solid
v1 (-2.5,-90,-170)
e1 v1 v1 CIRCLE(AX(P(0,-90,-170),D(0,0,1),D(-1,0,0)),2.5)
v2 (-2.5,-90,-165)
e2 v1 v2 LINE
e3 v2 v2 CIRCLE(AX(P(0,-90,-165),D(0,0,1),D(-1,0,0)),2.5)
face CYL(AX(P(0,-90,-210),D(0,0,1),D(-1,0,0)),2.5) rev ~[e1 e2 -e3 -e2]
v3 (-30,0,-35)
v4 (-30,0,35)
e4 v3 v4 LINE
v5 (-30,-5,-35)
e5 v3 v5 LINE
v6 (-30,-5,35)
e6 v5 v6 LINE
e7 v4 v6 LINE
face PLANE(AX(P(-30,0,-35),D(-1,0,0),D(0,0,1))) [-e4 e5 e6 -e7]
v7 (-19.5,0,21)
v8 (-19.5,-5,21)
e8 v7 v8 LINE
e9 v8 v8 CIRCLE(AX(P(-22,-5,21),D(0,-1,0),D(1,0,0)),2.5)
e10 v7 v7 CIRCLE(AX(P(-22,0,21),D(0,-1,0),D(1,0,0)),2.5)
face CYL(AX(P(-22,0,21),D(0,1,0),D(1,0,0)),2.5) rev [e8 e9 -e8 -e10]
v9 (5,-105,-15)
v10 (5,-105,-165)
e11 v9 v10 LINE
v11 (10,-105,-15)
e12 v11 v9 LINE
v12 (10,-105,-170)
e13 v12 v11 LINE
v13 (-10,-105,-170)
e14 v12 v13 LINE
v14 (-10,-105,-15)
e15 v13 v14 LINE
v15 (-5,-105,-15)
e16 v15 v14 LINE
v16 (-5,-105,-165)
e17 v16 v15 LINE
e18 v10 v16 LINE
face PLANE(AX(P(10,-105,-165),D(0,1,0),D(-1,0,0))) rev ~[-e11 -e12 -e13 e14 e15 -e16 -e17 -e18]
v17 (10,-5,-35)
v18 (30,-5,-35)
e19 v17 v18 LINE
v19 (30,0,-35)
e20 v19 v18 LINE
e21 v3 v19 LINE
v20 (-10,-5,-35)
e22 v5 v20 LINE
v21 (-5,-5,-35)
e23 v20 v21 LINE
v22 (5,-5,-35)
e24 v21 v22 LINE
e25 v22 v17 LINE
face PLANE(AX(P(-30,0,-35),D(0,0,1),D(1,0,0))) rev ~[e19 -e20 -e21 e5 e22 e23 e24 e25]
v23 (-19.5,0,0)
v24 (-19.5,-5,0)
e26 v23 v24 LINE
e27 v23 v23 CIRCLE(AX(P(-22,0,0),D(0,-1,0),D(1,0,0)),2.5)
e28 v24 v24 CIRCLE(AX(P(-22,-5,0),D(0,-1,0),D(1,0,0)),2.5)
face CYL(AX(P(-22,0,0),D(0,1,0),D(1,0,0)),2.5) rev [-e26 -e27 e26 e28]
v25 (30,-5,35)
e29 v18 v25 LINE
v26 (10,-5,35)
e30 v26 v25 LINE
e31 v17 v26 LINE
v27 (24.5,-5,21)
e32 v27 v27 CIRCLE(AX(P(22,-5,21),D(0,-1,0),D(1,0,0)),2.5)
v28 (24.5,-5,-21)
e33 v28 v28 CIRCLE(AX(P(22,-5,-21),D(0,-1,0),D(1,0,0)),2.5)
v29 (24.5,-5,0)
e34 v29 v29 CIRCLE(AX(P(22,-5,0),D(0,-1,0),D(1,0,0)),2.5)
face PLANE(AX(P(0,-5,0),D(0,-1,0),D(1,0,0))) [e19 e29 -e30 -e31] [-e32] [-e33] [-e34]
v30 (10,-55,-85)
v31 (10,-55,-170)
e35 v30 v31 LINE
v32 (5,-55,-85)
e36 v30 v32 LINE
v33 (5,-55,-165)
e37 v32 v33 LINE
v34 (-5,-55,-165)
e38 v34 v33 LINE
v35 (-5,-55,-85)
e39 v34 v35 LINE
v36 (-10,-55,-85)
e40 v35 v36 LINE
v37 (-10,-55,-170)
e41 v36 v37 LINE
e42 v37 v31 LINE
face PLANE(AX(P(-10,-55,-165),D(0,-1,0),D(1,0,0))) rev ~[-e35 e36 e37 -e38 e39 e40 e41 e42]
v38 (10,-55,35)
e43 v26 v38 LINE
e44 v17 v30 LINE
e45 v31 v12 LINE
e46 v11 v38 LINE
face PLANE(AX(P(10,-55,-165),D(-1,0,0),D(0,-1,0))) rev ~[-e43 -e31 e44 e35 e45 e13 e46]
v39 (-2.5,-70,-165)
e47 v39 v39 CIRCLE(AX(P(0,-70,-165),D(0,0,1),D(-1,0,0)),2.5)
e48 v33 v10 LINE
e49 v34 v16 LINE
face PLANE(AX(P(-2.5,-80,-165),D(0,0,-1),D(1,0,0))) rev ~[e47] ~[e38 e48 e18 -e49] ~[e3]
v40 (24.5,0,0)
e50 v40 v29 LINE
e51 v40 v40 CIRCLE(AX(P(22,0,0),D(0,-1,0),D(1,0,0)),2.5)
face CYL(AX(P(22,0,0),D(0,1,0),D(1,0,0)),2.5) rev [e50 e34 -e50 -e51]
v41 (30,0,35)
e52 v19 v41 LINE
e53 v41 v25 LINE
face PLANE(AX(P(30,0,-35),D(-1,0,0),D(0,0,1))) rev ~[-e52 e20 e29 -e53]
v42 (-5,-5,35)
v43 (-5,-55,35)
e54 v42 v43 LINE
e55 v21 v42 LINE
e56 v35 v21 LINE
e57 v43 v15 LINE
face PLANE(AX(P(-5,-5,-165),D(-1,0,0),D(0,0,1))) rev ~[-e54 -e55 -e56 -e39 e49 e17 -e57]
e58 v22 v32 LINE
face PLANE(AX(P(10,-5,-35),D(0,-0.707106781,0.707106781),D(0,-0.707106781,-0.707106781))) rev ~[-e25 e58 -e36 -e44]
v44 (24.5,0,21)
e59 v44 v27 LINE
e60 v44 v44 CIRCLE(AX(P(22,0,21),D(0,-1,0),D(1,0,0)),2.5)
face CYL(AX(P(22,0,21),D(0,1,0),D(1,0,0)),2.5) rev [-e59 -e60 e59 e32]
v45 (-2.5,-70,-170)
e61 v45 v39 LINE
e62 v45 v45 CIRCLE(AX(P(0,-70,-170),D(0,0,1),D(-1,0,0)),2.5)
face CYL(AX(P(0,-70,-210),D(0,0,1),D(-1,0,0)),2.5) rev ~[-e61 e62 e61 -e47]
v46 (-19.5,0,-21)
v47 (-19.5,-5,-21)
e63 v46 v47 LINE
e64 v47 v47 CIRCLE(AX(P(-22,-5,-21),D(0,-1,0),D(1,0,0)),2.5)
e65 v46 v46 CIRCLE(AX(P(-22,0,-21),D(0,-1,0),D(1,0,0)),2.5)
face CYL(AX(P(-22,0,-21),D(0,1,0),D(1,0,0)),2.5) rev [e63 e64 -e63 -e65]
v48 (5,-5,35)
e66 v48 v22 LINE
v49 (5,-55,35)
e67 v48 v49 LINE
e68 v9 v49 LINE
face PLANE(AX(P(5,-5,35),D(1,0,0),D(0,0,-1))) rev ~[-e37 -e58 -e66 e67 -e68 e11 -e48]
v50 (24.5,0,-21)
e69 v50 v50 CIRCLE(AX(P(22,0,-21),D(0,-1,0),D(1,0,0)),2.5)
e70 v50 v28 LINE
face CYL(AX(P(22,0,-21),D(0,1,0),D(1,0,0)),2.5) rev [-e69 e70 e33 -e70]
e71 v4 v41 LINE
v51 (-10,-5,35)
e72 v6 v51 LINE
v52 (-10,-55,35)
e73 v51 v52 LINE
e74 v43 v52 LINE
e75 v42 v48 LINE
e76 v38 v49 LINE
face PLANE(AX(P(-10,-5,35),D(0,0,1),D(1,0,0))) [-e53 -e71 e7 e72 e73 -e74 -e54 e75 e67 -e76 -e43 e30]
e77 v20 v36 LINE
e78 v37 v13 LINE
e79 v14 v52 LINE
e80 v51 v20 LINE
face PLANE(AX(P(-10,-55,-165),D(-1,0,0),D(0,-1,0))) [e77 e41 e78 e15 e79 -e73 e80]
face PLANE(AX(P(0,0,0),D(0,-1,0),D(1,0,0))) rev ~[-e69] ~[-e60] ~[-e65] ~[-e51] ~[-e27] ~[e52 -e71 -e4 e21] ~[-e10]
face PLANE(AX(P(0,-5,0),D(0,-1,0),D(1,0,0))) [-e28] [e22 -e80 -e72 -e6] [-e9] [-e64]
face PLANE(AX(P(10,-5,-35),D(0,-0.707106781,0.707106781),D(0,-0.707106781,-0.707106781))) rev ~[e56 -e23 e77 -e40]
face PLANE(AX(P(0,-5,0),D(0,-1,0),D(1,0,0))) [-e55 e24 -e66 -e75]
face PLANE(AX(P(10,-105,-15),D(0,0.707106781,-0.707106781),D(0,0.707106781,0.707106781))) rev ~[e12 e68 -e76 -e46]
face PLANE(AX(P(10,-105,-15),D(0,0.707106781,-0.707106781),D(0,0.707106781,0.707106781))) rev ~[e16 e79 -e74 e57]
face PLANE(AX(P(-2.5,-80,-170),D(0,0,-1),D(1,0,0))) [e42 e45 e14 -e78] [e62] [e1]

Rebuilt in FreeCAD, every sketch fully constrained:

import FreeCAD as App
import Part
import Sketcher
from FreeCAD import Vector
Q = App.Units.Quantity

doc = App.newDocument("Part")
body = doc.addObject("PartDesign::Body", "Body")

# Sketch on XZ plane
sketch1 = body.newObject("Sketcher::SketchObject", "Sketch")
sketch1.AttachmentSupport = (doc.getObject("XZ_Plane"), [""])
sketch1.MapMode = "FlatFace"
sketch1.addGeometry(Part.LineSegment(Vector(-30, 35, 0), Vector(-30, -35, 0)), False)
sketch1.addGeometry(Part.LineSegment(Vector(-30, -35, 0), Vector(30, -35, 0)), False)
sketch1.addGeometry(Part.LineSegment(Vector(30, -35, 0), Vector(30, 35, 0)), False)
sketch1.addGeometry(Part.LineSegment(Vector(30, 35, 0), Vector(-30, 35, 0)), False)
sketch1.addGeometry(Part.Circle(Vector(-22, -21, 0), Vector(0, 0, 1), 2.5), False)
sketch1.addGeometry(Part.Circle(Vector(22, -21, 0), Vector(0, 0, 1), 2.5), False)
sketch1.addGeometry(Part.Circle(Vector(-22, 0, 0), Vector(0, 0, 1), 2.5), False)
sketch1.addGeometry(Part.Circle(Vector(-22, 21, 0), Vector(0, 0, 1), 2.5), False)
sketch1.addGeometry(Part.Circle(Vector(22, 0, 0), Vector(0, 0, 1), 2.5), False)
sketch1.addGeometry(Part.Circle(Vector(22, 21, 0), Vector(0, 0, 1), 2.5), False)
sketch1.addConstraint(Sketcher.Constraint("Coincident", 0, 2, 1, 1))
sketch1.addConstraint(Sketcher.Constraint("Coincident", 1, 2, 2, 1))
sketch1.addConstraint(Sketcher.Constraint("Coincident", 2, 2, 3, 1))
sketch1.addConstraint(Sketcher.Constraint("Coincident", 3, 2, 0, 1))
sketch1.addConstraint(Sketcher.Constraint("Vertical", 0))
sketch1.addConstraint(Sketcher.Constraint("Horizontal", 1))
sketch1.addConstraint(Sketcher.Constraint("Vertical", 2))
sketch1.addConstraint(Sketcher.Constraint("Horizontal", 3))
sketch1.addConstraint(Sketcher.Constraint("Equal", 4, 5))
sketch1.addConstraint(Sketcher.Constraint("Equal", 5, 6))
sketch1.addConstraint(Sketcher.Constraint("Equal", 6, 7))
sketch1.addConstraint(Sketcher.Constraint("Equal", 7, 8))
sketch1.addConstraint(Sketcher.Constraint("Equal", 8, 9))
sketch1.addConstraint(Sketcher.Constraint("Symmetric", 5, 3, 7, 3, -1, 1))
sketch1.addConstraint(Sketcher.Constraint("Symmetric", 6, 3, 8, 3, -1, 1))
sketch1.addConstraint(Sketcher.Constraint("Symmetric", 4, 3, 9, 3, -1, 1))
sketch1.addConstraint(Sketcher.Constraint("Symmetric", 0, 2, 2, 2, -1, 1))
sketch1.addConstraint(Sketcher.Constraint("Symmetric", 4, 3, 5, 3, -2))
sketch1.addConstraint(Sketcher.Constraint("PointOnObject", 6, 3, -1))
sketch1.addConstraint(Sketcher.Constraint("Vertical", 4, 3, 6, 3))
sketch1.addConstraint(Sketcher.Constraint("Diameter", 4, Q("5 mm")))
sketch1.addConstraint(Sketcher.Constraint("DistanceX", 1, 1, 1, 2, Q("60 mm")))
sketch1.addConstraint(Sketcher.Constraint("DistanceY", 0, 2, 0, 1, Q("70 mm")))
sketch1.addConstraint(Sketcher.Constraint("DistanceX", 4, 3, -1, 1, Q("22 mm")))
sketch1.addConstraint(Sketcher.Constraint("DistanceY", 4, 3, -1, 1, Q("21 mm")))
pad1 = body.newObject("PartDesign::Pad", "Pad")
pad1.Profile = sketch1
pad1.Length = 5

# Sketch on XZ plane
sketch2 = body.newObject("Sketcher::SketchObject", "Sketch001")
sketch2.AttachmentSupport = (doc.getObject("XZ_Plane"), [""])
sketch2.MapMode = "FlatFace"
sketch2.AttachmentOffset = App.Placement(Vector(0, 0, 5), App.Rotation())
sketch2.addGeometry(Part.LineSegment(Vector(-10, -165, 0), Vector(-5, -165, 0)), False)
sketch2.addGeometry(Part.LineSegment(Vector(-5, -165, 0), Vector(-5, 35, 0)), False)
sketch2.addGeometry(Part.LineSegment(Vector(-5, 35, 0), Vector(-10, 35, 0)), False)
sketch2.addGeometry(Part.LineSegment(Vector(-10, 35, 0), Vector(-10, -165, 0)), False)
sketch2.addGeometry(Part.LineSegment(Vector(10, 35, 0), Vector(5, 35, 0)), False)
sketch2.addGeometry(Part.LineSegment(Vector(5, 35, 0), Vector(5, -165, 0)), False)
sketch2.addGeometry(Part.LineSegment(Vector(5, -165, 0), Vector(10, -165, 0)), False)
sketch2.addGeometry(Part.LineSegment(Vector(10, -165, 0), Vector(10, 35, 0)), False)
sketch2.addConstraint(Sketcher.Constraint("Coincident", 0, 2, 1, 1))
sketch2.addConstraint(Sketcher.Constraint("Coincident", 1, 2, 2, 1))
sketch2.addConstraint(Sketcher.Constraint("Coincident", 2, 2, 3, 1))
sketch2.addConstraint(Sketcher.Constraint("Coincident", 3, 2, 0, 1))
sketch2.addConstraint(Sketcher.Constraint("Coincident", 4, 2, 5, 1))
sketch2.addConstraint(Sketcher.Constraint("Coincident", 5, 2, 6, 1))
sketch2.addConstraint(Sketcher.Constraint("Coincident", 6, 2, 7, 1))
sketch2.addConstraint(Sketcher.Constraint("Coincident", 7, 2, 4, 1))
sketch2.addConstraint(Sketcher.Constraint("Horizontal", 0))
sketch2.addConstraint(Sketcher.Constraint("Vertical", 1))
sketch2.addConstraint(Sketcher.Constraint("Horizontal", 2))
sketch2.addConstraint(Sketcher.Constraint("Vertical", 3))
sketch2.addConstraint(Sketcher.Constraint("Horizontal", 4))
sketch2.addConstraint(Sketcher.Constraint("Vertical", 5))
sketch2.addConstraint(Sketcher.Constraint("Horizontal", 6))
sketch2.addConstraint(Sketcher.Constraint("Vertical", 7))
sketch2.addConstraint(Sketcher.Constraint("Symmetric", 1, 2, 4, 2, -2))
sketch2.addConstraint(Sketcher.Constraint("Symmetric", 3, 2, 6, 2, -2))
sketch2.addConstraint(Sketcher.Constraint("DistanceX", 0, 1, 0, 2, Q("5 mm")))
sketch2.addConstraint(Sketcher.Constraint("DistanceY", 1, 1, 1, 2, Q("200 mm")))
sketch2.addConstraint(Sketcher.Constraint("DistanceX", 0, 2, -1, 1, Q("5 mm")))
sketch2.addConstraint(Sketcher.Constraint("DistanceY", 0, 2, -1, 1, Q("165 mm")))
pad2 = body.newObject("PartDesign::Pad", "Pad001")
pad2.Profile = sketch2
pad2.Length = 100

# Sketch on YZ plane
sketch3 = body.newObject("Sketcher::SketchObject", "Sketch002")
sketch3.AttachmentSupport = (doc.getObject("YZ_Plane"), [""])
sketch3.MapMode = "FlatFace"
sketch3.AttachmentOffset = App.Placement(Vector(0, 0, 10), App.Rotation())
sketch3.addGeometry(Part.LineSegment(Vector(-105, -15, 0), Vector(-55, 35, 0)), False)
sketch3.addGeometry(Part.LineSegment(Vector(-55, 35, 0), Vector(-105, 35, 0)), False)
sketch3.addGeometry(Part.LineSegment(Vector(-105, 35, 0), Vector(-105, -15, 0)), False)
sketch3.addGeometry(Part.LineSegment(Vector(-5, -165, 0), Vector(-5, -35, 0)), False)
sketch3.addGeometry(Part.LineSegment(Vector(-5, -35, 0), Vector(-55, -85, 0)), False)
sketch3.addGeometry(Part.LineSegment(Vector(-55, -85, 0), Vector(-55, -165, 0)), False)
sketch3.addGeometry(Part.LineSegment(Vector(-55, -165, 0), Vector(-5, -165, 0)), False)
sketch3.addConstraint(Sketcher.Constraint("Coincident", 0, 2, 1, 1))
sketch3.addConstraint(Sketcher.Constraint("Coincident", 1, 2, 2, 1))
sketch3.addConstraint(Sketcher.Constraint("Coincident", 2, 2, 0, 1))
sketch3.addConstraint(Sketcher.Constraint("Coincident", 3, 2, 4, 1))
sketch3.addConstraint(Sketcher.Constraint("Coincident", 4, 2, 5, 1))
sketch3.addConstraint(Sketcher.Constraint("Coincident", 5, 2, 6, 1))
sketch3.addConstraint(Sketcher.Constraint("Coincident", 6, 2, 3, 1))
sketch3.addConstraint(Sketcher.Constraint("Horizontal", 1))
sketch3.addConstraint(Sketcher.Constraint("Vertical", 2))
sketch3.addConstraint(Sketcher.Constraint("Vertical", 3))
sketch3.addConstraint(Sketcher.Constraint("Vertical", 5))
sketch3.addConstraint(Sketcher.Constraint("Horizontal", 6))
sketch3.addConstraint(Sketcher.Constraint("Parallel", 0, 4))
sketch3.addConstraint(Sketcher.Constraint("Vertical", 0, 2, 4, 2))
sketch3.addConstraint(Sketcher.Constraint("Equal", 1, 6))
sketch3.addConstraint(Sketcher.Constraint("Equal", 6, 2))
sketch3.addConstraint(Sketcher.Constraint("DistanceX", 1, 2, 1, 1, Q("50 mm")))
sketch3.addConstraint(Sketcher.Constraint("DistanceY", 3, 1, 3, 2, Q("130 mm")))
sketch3.addConstraint(Sketcher.Constraint("DistanceX", 0, 2, -1, 1, Q("55 mm")))
sketch3.addConstraint(Sketcher.Constraint("DistanceY", -1, 1, 0, 2, Q("35 mm")))
sketch3.addConstraint(Sketcher.Constraint("DistanceY", 3, 2, -1, 1, Q("35 mm")))
pocket1 = body.newObject("PartDesign::Pocket", "Pocket")
pocket1.Profile = sketch3
pocket1.Length = 25

# Sketch on XY plane
sketch4 = body.newObject("Sketcher::SketchObject", "Sketch003")
sketch4.AttachmentSupport = (doc.getObject("XY_Plane"), [""])
sketch4.MapMode = "FlatFace"
sketch4.AttachmentOffset = App.Placement(Vector(0, 0, -165), App.Rotation())
sketch4.addGeometry(Part.LineSegment(Vector(-10, -105, 0), Vector(-10, -55, 0)), False)
sketch4.addGeometry(Part.LineSegment(Vector(-10, -55, 0), Vector(10, -55, 0)), False)
sketch4.addGeometry(Part.LineSegment(Vector(10, -55, 0), Vector(10, -105, 0)), False)
sketch4.addGeometry(Part.LineSegment(Vector(10, -105, 0), Vector(-10, -105, 0)), False)
sketch4.addConstraint(Sketcher.Constraint("Coincident", 0, 2, 1, 1))
sketch4.addConstraint(Sketcher.Constraint("Coincident", 1, 2, 2, 1))
sketch4.addConstraint(Sketcher.Constraint("Coincident", 2, 2, 3, 1))
sketch4.addConstraint(Sketcher.Constraint("Coincident", 3, 2, 0, 1))
sketch4.addConstraint(Sketcher.Constraint("Vertical", 0))
sketch4.addConstraint(Sketcher.Constraint("Horizontal", 1))
sketch4.addConstraint(Sketcher.Constraint("Vertical", 2))
sketch4.addConstraint(Sketcher.Constraint("Horizontal", 3))
sketch4.addConstraint(Sketcher.Constraint("DistanceX", 1, 1, 1, 2, Q("20 mm")))
sketch4.addConstraint(Sketcher.Constraint("DistanceY", 0, 1, 0, 2, Q("50 mm")))
sketch4.addConstraint(Sketcher.Constraint("DistanceX", 0, 2, -1, 1, Q("10 mm")))
sketch4.addConstraint(Sketcher.Constraint("DistanceY", 0, 2, -1, 1, Q("55 mm")))
pad3 = body.newObject("PartDesign::Pad", "Pad002")
pad3.Profile = sketch4
pad3.Length = 5
pad3.Reversed = True

# Sketch on XY plane
sketch5 = body.newObject("Sketcher::SketchObject", "Sketch004")
sketch5.AttachmentSupport = (doc.getObject("XY_Plane"), [""])
sketch5.MapMode = "FlatFace"
sketch5.AttachmentOffset = App.Placement(Vector(0, 0, -170), App.Rotation())
sketch5.addGeometry(Part.Circle(Vector(0, -90, 0), Vector(0, 0, 1), 2.5), False)
sketch5.addGeometry(Part.Circle(Vector(0, -70, 0), Vector(0, 0, 1), 2.5), False)
sketch5.addConstraint(Sketcher.Constraint("Equal", 0, 1))
sketch5.addConstraint(Sketcher.Constraint("PointOnObject", 0, 3, -2))
sketch5.addConstraint(Sketcher.Constraint("PointOnObject", 1, 3, -2))
sketch5.addConstraint(Sketcher.Constraint("Diameter", 0, Q("5 mm")))
sketch5.addConstraint(Sketcher.Constraint("DistanceY", 0, 3, -1, 1, Q("90 mm")))
sketch5.addConstraint(Sketcher.Constraint("DistanceY", 1, 3, -1, 1, Q("70 mm")))
doc.recompute()
hole = body.newObject("PartDesign::Hole", "Hole")
hole.Profile = sketch5
hole.ThreadType = "None"
hole.Diameter = 5
hole.DepthType = "Dimension"
hole.Depth = 40
hole.DrillPoint = "Flat"
hole.Reversed = True

doc.recompute()
